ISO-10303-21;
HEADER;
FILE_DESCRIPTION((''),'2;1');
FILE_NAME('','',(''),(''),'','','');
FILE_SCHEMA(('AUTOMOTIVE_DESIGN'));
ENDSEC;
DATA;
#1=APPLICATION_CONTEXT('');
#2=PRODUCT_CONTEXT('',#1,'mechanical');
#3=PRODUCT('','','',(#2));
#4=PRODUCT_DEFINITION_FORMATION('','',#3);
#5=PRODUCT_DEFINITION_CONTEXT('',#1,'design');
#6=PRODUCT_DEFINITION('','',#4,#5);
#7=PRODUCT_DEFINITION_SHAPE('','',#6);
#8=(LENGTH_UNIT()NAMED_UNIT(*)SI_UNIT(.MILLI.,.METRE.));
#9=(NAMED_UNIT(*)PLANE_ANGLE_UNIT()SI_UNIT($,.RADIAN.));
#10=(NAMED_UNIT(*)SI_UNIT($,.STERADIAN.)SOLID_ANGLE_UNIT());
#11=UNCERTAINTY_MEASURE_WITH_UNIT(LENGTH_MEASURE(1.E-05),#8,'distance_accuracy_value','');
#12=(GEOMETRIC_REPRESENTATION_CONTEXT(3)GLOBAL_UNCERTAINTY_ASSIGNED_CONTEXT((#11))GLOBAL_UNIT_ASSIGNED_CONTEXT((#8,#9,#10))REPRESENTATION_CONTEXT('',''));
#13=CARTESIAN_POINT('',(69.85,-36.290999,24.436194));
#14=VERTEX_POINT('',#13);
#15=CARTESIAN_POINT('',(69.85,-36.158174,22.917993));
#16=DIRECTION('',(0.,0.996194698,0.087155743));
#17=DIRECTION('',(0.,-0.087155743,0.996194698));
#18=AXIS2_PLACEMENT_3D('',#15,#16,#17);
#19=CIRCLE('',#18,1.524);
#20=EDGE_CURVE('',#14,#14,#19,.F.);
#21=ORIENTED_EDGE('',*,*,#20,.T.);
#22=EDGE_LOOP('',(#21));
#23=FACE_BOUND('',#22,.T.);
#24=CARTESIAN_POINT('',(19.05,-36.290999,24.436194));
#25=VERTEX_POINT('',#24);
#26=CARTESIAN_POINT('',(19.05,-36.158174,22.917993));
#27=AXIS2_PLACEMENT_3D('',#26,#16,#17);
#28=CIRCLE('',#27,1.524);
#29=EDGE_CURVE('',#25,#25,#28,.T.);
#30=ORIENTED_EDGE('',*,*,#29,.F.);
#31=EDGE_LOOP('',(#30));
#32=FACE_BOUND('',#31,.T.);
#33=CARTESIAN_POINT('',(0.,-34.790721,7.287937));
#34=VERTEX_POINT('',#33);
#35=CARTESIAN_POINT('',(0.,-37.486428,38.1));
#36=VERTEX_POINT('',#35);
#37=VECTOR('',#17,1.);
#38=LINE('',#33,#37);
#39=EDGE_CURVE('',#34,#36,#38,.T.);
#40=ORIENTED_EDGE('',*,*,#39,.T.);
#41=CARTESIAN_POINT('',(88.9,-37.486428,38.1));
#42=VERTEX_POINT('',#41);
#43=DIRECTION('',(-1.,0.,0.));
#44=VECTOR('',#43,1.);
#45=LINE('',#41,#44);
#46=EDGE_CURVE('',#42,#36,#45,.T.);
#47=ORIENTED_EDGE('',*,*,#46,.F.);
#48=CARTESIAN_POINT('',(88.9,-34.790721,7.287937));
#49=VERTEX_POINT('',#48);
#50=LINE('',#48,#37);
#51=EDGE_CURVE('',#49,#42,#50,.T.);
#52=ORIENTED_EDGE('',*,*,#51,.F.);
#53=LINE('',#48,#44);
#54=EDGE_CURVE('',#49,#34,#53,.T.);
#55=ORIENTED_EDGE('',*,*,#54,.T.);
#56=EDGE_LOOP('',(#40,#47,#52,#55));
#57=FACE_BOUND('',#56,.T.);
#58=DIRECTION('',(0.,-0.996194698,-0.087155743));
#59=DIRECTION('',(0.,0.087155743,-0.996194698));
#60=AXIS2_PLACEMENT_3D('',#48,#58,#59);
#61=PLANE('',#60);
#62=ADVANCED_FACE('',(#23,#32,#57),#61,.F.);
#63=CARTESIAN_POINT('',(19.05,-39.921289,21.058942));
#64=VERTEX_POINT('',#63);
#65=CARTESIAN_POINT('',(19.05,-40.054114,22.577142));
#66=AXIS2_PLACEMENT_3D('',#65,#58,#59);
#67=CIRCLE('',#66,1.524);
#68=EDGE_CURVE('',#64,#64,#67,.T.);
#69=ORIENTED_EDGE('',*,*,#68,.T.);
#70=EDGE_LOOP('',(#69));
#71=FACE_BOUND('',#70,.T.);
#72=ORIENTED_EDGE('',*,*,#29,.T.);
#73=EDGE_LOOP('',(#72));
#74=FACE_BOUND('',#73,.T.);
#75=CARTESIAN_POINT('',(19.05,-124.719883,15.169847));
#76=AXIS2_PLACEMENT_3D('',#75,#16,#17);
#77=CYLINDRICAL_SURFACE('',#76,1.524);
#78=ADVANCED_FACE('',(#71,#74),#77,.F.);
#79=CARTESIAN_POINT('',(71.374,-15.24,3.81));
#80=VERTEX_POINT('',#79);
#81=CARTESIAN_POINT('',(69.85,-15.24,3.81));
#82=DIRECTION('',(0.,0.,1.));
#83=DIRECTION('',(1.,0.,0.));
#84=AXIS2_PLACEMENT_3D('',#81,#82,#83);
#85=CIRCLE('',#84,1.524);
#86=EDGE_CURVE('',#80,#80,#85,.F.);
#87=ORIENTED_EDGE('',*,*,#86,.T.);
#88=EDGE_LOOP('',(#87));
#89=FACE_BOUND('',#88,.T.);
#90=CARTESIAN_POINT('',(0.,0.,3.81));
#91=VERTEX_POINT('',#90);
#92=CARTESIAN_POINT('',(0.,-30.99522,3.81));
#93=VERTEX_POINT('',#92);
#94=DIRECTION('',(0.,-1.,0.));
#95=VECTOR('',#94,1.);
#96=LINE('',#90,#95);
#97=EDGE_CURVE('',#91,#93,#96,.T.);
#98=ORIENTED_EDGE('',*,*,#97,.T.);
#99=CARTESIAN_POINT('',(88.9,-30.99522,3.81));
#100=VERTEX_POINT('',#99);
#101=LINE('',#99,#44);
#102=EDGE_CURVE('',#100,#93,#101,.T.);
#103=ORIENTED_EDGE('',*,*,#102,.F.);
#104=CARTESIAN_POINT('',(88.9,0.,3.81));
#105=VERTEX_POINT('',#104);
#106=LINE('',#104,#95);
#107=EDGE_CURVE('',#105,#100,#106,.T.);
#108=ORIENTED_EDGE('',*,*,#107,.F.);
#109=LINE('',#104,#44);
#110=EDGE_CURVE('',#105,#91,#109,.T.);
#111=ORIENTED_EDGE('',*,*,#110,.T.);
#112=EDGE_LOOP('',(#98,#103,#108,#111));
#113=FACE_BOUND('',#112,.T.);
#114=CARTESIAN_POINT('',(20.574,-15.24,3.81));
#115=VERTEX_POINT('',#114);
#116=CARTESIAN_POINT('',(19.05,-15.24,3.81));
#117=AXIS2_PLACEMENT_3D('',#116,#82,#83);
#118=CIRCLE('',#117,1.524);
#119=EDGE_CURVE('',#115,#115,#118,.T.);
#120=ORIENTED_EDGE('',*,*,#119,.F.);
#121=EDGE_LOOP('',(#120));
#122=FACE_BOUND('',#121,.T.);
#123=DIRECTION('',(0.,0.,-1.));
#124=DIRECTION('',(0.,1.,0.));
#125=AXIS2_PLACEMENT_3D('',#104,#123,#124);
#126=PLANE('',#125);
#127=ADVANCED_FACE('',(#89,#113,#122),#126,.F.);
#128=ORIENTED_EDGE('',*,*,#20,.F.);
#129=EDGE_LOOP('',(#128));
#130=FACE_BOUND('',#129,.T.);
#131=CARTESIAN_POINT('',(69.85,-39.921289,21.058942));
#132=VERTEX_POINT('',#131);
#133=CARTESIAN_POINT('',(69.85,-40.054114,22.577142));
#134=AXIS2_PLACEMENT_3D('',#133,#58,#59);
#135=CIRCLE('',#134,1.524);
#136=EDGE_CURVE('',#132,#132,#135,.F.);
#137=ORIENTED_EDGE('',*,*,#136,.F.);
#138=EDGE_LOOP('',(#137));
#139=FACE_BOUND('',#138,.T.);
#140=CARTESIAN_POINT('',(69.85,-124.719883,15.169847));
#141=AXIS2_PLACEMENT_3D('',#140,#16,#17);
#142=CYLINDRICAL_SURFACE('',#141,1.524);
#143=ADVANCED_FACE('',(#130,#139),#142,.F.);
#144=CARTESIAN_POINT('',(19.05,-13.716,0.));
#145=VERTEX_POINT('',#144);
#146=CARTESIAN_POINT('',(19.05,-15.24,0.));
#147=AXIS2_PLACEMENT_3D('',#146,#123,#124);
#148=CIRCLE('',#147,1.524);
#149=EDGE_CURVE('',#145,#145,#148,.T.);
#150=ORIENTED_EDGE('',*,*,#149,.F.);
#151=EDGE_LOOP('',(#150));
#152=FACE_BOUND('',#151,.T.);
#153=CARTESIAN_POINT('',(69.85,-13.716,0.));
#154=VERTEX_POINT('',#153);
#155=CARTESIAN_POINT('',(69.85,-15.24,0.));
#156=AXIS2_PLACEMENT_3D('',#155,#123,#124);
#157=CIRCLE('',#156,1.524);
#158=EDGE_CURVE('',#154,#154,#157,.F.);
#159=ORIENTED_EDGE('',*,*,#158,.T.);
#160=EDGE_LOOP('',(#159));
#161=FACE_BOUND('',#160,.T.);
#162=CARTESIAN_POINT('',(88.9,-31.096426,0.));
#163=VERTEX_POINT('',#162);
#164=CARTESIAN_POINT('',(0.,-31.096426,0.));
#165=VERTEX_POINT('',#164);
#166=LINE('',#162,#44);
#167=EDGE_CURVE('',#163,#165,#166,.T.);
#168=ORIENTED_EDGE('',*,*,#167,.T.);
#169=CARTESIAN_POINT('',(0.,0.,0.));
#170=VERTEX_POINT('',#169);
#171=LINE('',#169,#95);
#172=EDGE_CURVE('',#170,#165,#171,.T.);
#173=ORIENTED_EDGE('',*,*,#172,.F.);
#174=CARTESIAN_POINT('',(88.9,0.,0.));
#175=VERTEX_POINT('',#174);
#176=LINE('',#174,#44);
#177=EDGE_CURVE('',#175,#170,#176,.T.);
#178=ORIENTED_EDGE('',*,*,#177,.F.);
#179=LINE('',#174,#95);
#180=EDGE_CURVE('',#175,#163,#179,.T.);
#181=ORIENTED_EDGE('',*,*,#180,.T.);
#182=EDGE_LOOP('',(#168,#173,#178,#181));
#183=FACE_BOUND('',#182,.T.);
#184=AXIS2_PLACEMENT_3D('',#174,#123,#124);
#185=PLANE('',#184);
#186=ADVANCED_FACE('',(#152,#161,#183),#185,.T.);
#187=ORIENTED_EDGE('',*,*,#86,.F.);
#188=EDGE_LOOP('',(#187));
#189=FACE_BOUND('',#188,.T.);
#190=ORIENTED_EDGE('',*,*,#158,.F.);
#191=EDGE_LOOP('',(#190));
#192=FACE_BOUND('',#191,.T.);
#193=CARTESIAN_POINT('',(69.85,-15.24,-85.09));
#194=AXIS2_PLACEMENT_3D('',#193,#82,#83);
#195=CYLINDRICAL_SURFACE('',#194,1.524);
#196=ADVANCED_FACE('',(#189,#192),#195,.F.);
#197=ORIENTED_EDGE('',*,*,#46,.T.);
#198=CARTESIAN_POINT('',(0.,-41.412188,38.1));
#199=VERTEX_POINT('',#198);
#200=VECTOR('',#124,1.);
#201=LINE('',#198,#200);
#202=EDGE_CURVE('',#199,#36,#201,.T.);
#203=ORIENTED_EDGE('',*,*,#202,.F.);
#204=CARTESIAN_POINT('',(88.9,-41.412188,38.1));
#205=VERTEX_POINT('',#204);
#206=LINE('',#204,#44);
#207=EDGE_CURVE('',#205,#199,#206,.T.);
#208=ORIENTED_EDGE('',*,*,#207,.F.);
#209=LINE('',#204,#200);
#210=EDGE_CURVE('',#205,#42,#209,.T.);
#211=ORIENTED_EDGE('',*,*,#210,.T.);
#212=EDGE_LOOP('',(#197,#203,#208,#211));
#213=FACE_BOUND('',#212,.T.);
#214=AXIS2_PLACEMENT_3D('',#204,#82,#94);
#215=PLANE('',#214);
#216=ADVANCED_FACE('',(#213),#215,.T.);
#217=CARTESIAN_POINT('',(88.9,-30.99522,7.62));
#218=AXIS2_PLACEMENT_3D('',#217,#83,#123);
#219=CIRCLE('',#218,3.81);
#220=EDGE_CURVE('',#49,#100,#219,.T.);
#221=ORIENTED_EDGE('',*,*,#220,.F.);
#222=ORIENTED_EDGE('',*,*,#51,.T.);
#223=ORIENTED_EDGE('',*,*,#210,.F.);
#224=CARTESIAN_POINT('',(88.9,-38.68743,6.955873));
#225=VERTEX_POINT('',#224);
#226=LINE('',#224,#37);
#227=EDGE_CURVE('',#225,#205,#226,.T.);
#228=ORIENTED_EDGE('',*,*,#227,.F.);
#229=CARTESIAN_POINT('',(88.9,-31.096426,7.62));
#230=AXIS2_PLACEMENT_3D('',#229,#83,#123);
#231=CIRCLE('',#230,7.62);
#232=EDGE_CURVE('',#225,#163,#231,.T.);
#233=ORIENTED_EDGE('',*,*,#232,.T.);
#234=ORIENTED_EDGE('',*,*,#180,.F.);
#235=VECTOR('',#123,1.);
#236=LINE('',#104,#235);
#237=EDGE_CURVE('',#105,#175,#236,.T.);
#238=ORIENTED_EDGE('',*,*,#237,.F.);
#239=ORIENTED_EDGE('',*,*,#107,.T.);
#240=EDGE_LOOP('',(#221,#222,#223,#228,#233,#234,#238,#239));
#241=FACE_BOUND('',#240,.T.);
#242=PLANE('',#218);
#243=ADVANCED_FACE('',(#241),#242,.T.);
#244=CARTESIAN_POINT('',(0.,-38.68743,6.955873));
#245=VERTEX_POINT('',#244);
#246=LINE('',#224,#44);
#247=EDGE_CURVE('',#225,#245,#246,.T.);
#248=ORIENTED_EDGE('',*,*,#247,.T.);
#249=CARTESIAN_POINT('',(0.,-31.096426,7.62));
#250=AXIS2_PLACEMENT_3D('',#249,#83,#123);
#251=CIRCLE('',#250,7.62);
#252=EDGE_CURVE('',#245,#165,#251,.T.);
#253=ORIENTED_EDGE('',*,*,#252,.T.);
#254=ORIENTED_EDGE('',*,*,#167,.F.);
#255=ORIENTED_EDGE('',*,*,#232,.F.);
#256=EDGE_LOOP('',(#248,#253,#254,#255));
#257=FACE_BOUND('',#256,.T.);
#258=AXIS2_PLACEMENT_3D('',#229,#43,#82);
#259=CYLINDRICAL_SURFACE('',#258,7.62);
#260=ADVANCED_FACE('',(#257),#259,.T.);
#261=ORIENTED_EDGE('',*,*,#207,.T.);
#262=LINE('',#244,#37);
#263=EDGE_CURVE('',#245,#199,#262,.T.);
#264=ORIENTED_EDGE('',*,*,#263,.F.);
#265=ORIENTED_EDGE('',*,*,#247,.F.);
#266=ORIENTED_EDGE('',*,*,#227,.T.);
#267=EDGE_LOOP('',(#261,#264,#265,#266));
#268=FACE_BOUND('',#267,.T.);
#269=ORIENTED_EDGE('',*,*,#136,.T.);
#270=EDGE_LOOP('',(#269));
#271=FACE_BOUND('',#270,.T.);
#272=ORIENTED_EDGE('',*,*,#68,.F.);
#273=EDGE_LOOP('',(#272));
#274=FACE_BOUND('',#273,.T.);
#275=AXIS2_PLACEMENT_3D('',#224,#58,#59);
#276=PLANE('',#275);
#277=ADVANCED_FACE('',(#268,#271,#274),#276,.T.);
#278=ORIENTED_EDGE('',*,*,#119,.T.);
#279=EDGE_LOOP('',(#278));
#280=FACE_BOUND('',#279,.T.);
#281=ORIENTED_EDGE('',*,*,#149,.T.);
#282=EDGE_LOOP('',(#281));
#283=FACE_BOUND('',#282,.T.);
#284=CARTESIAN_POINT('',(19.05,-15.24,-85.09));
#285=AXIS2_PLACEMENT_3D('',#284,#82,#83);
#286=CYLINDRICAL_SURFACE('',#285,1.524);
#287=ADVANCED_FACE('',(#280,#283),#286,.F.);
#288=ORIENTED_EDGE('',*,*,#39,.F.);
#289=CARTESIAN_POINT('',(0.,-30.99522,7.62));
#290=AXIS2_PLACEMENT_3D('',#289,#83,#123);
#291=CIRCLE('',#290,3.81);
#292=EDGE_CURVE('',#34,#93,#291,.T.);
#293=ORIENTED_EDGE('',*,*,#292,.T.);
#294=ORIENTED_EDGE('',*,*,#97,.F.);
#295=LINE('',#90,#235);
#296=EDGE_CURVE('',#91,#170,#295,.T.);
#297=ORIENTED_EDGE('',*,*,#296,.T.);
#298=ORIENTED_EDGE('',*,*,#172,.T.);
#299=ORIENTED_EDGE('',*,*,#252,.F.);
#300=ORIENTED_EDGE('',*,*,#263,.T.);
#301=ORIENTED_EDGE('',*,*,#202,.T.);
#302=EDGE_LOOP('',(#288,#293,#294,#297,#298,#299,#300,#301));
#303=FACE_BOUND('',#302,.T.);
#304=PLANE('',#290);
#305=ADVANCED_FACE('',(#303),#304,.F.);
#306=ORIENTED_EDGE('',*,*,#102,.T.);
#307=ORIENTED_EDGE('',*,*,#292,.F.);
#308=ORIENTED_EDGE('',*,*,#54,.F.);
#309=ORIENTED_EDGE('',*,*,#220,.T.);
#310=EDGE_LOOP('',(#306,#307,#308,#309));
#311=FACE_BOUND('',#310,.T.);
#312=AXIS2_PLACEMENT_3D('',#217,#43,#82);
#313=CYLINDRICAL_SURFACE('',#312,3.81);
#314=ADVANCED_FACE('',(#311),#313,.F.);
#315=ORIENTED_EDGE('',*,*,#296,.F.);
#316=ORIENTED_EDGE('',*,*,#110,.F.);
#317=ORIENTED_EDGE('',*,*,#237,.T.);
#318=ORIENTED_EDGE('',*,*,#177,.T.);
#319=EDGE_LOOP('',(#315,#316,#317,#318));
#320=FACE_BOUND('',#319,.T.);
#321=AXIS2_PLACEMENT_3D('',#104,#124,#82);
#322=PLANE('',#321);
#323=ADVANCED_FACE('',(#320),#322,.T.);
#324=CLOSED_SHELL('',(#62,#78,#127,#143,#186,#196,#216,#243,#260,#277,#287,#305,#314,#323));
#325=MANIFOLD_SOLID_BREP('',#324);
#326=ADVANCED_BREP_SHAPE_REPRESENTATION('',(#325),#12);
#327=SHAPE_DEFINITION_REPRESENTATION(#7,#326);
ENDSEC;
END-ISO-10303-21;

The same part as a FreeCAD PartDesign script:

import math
import FreeCAD as App
import Part
import Sketcher

V = App.Vector
Q = App.Units.Quantity

doc = App.newDocument("Part")
body = doc.addObject("PartDesign::Body", "Body")

sketch1 = doc.addObject("Sketcher::SketchObject", "Sketch")
body.addObject(sketch1)
sketch1.AttachmentSupport = (doc.YZ_Plane, [""])
sketch1.MapMode = "FlatFace"
sketch1.addGeometry([
    Part.LineSegment(V(-31.1, 0, 0), V(0, 0, 0)),
    Part.LineSegment(V(0, 0, 0), V(0, 3.8, 0)),
    Part.LineSegment(V(0, 3.8, 0), V(-31, 3.8, 0)),
    Part.ArcOfCircle(Part.Circle(V(-31, 7.6, 0), V(0, 0, 1), 3.8), math.radians(-175), math.radians(-90)),
    Part.LineSegment(V(-34.8, 7.3, 0), V(-37.5, 38.1, 0)),
    Part.LineSegment(V(-37.5, 38.1, 0), V(-41.4, 38.1, 0)),
    Part.LineSegment(V(-41.4, 38.1, 0), V(-38.7, 7, 0)),
    Part.ArcOfCircle(Part.Circle(V(-31.1, 7.6, 0), V(0, 0, 1), 7.6), math.radians(-175), math.radians(-90)),
], False)
sketch1.addConstraint([
    Sketcher.Constraint("Coincident", 0, 2, 1, 1),
    Sketcher.Constraint("Coincident", 1, 2, 2, 1),
    Sketcher.Constraint("Tangent", 2, 2, 3, 2),
    Sketcher.Constraint("Tangent", 3, 1, 4, 1),
    Sketcher.Constraint("Coincident", 4, 2, 5, 1),
    Sketcher.Constraint("Coincident", 5, 2, 6, 1),
    Sketcher.Constraint("Tangent", 6, 2, 7, 1),
    Sketcher.Constraint("Tangent", 7, 2, 0, 1),
    Sketcher.Constraint("Horizontal", 0),
    Sketcher.Constraint("Vertical", 1),
    Sketcher.Constraint("Horizontal", 2),
    Sketcher.Constraint("Horizontal", 5),
    Sketcher.Constraint("Coincident", 0, 2, -1, 1),
    Sketcher.Constraint("Parallel", 4, 6),
    Sketcher.Constraint("Horizontal", 3, 3, 7, 3),
    Sketcher.Constraint("Radius", 7, Q("0.3 in")),
    Sketcher.Constraint("Radius", 3, Q("0.15 in")),
    Sketcher.Constraint("Angle", 4, Q("95 deg")),
    Sketcher.Constraint("DistanceY", -1, 1, 4, 2, Q("1.5 in")),
    Sketcher.Constraint("DistanceX", 2, 2, 2, 1, 30.99522),
    Sketcher.Constraint("DistanceX", 5, 2, 5, 1, 3.92576),
])
pad1 = doc.addObject("PartDesign::Pad", "Pad")
body.addObject(pad1)
pad1.Profile = sketch1
pad1.Length = Q("3.5 in")

sketch2 = doc.addObject("Sketcher::SketchObject", "Sketch001")
body.addObject(sketch2)
sketch2.AttachmentSupport = (doc.XY_Plane, [""])
sketch2.MapMode = "FlatFace"
sketch2.AttachmentOffset = App.Placement(V(0, 0, 0.15 * 25.4), App.Rotation())
sketch2.addGeometry([
    Part.Circle(V(69.8, -15.2, 0), V(0, 0, 1), 1.5),
    Part.Circle(V(19.1, -15.2, 0), V(0, 0, 1), 1.5),
], False)
sketch2.addConstraint([
    Sketcher.Constraint("Equal", 0, 1),
    Sketcher.Constraint("Horizontal", 0, 3, 1, 3),
    Sketcher.Constraint("Diameter", 0, Q("0.12 in")),
    Sketcher.Constraint("DistanceX", 1, 3, 0, 3, Q("2 in")),
    Sketcher.Constraint("DistanceY", 0, 3, -1, 1, Q("0.6 in")),
    Sketcher.Constraint("DistanceX", -1, 1, 0, 3, Q("2.75 in")),
])
pocket1 = doc.addObject("PartDesign::Pocket", "Pocket")
body.addObject(pocket1)
pocket1.Profile = sketch2
pocket1.Length = Q("3.5 in")

sketch3 = doc.addObject("Sketcher::SketchObject", "Sketch002")
body.addObject(sketch3)
sketch3.Placement = App.Placement(V(0, -33.893678, -2.965313), App.Rotation(V(1, 0, 0), V(0, 0.087155743, -0.996194698), V(0, 0.996194698, 0.087155743), "ZXY"))
sketch3.addGeometry([
    Part.Circle(V(69.8, -26, 0), V(0, 0, 1), 1.5),
    Part.Circle(V(19.1, -26, 0), V(0, 0, 1), 1.5),
], False)
sketch3.addConstraint([
    Sketcher.Constraint("Equal", 0, 1),
    Sketcher.Constraint("Horizontal", 0, 3, 1, 3),
    Sketcher.Constraint("Diameter", 0, Q("0.12 in")),
    Sketcher.Constraint("DistanceX", 1, 3, 0, 3, Q("2 in")),
    Sketcher.Constraint("DistanceX", -1, 1, 0, 3, Q("2.75 in")),
    Sketcher.Constraint("DistanceY", 0, 3, -1, 1, 25.982175),
])
pocket2 = doc.addObject("PartDesign::Pocket", "Pocket001")
body.addObject(pocket2)
pocket2.Profile = sketch3
pocket2.Length = Q("3.5 in")

doc.recompute()
